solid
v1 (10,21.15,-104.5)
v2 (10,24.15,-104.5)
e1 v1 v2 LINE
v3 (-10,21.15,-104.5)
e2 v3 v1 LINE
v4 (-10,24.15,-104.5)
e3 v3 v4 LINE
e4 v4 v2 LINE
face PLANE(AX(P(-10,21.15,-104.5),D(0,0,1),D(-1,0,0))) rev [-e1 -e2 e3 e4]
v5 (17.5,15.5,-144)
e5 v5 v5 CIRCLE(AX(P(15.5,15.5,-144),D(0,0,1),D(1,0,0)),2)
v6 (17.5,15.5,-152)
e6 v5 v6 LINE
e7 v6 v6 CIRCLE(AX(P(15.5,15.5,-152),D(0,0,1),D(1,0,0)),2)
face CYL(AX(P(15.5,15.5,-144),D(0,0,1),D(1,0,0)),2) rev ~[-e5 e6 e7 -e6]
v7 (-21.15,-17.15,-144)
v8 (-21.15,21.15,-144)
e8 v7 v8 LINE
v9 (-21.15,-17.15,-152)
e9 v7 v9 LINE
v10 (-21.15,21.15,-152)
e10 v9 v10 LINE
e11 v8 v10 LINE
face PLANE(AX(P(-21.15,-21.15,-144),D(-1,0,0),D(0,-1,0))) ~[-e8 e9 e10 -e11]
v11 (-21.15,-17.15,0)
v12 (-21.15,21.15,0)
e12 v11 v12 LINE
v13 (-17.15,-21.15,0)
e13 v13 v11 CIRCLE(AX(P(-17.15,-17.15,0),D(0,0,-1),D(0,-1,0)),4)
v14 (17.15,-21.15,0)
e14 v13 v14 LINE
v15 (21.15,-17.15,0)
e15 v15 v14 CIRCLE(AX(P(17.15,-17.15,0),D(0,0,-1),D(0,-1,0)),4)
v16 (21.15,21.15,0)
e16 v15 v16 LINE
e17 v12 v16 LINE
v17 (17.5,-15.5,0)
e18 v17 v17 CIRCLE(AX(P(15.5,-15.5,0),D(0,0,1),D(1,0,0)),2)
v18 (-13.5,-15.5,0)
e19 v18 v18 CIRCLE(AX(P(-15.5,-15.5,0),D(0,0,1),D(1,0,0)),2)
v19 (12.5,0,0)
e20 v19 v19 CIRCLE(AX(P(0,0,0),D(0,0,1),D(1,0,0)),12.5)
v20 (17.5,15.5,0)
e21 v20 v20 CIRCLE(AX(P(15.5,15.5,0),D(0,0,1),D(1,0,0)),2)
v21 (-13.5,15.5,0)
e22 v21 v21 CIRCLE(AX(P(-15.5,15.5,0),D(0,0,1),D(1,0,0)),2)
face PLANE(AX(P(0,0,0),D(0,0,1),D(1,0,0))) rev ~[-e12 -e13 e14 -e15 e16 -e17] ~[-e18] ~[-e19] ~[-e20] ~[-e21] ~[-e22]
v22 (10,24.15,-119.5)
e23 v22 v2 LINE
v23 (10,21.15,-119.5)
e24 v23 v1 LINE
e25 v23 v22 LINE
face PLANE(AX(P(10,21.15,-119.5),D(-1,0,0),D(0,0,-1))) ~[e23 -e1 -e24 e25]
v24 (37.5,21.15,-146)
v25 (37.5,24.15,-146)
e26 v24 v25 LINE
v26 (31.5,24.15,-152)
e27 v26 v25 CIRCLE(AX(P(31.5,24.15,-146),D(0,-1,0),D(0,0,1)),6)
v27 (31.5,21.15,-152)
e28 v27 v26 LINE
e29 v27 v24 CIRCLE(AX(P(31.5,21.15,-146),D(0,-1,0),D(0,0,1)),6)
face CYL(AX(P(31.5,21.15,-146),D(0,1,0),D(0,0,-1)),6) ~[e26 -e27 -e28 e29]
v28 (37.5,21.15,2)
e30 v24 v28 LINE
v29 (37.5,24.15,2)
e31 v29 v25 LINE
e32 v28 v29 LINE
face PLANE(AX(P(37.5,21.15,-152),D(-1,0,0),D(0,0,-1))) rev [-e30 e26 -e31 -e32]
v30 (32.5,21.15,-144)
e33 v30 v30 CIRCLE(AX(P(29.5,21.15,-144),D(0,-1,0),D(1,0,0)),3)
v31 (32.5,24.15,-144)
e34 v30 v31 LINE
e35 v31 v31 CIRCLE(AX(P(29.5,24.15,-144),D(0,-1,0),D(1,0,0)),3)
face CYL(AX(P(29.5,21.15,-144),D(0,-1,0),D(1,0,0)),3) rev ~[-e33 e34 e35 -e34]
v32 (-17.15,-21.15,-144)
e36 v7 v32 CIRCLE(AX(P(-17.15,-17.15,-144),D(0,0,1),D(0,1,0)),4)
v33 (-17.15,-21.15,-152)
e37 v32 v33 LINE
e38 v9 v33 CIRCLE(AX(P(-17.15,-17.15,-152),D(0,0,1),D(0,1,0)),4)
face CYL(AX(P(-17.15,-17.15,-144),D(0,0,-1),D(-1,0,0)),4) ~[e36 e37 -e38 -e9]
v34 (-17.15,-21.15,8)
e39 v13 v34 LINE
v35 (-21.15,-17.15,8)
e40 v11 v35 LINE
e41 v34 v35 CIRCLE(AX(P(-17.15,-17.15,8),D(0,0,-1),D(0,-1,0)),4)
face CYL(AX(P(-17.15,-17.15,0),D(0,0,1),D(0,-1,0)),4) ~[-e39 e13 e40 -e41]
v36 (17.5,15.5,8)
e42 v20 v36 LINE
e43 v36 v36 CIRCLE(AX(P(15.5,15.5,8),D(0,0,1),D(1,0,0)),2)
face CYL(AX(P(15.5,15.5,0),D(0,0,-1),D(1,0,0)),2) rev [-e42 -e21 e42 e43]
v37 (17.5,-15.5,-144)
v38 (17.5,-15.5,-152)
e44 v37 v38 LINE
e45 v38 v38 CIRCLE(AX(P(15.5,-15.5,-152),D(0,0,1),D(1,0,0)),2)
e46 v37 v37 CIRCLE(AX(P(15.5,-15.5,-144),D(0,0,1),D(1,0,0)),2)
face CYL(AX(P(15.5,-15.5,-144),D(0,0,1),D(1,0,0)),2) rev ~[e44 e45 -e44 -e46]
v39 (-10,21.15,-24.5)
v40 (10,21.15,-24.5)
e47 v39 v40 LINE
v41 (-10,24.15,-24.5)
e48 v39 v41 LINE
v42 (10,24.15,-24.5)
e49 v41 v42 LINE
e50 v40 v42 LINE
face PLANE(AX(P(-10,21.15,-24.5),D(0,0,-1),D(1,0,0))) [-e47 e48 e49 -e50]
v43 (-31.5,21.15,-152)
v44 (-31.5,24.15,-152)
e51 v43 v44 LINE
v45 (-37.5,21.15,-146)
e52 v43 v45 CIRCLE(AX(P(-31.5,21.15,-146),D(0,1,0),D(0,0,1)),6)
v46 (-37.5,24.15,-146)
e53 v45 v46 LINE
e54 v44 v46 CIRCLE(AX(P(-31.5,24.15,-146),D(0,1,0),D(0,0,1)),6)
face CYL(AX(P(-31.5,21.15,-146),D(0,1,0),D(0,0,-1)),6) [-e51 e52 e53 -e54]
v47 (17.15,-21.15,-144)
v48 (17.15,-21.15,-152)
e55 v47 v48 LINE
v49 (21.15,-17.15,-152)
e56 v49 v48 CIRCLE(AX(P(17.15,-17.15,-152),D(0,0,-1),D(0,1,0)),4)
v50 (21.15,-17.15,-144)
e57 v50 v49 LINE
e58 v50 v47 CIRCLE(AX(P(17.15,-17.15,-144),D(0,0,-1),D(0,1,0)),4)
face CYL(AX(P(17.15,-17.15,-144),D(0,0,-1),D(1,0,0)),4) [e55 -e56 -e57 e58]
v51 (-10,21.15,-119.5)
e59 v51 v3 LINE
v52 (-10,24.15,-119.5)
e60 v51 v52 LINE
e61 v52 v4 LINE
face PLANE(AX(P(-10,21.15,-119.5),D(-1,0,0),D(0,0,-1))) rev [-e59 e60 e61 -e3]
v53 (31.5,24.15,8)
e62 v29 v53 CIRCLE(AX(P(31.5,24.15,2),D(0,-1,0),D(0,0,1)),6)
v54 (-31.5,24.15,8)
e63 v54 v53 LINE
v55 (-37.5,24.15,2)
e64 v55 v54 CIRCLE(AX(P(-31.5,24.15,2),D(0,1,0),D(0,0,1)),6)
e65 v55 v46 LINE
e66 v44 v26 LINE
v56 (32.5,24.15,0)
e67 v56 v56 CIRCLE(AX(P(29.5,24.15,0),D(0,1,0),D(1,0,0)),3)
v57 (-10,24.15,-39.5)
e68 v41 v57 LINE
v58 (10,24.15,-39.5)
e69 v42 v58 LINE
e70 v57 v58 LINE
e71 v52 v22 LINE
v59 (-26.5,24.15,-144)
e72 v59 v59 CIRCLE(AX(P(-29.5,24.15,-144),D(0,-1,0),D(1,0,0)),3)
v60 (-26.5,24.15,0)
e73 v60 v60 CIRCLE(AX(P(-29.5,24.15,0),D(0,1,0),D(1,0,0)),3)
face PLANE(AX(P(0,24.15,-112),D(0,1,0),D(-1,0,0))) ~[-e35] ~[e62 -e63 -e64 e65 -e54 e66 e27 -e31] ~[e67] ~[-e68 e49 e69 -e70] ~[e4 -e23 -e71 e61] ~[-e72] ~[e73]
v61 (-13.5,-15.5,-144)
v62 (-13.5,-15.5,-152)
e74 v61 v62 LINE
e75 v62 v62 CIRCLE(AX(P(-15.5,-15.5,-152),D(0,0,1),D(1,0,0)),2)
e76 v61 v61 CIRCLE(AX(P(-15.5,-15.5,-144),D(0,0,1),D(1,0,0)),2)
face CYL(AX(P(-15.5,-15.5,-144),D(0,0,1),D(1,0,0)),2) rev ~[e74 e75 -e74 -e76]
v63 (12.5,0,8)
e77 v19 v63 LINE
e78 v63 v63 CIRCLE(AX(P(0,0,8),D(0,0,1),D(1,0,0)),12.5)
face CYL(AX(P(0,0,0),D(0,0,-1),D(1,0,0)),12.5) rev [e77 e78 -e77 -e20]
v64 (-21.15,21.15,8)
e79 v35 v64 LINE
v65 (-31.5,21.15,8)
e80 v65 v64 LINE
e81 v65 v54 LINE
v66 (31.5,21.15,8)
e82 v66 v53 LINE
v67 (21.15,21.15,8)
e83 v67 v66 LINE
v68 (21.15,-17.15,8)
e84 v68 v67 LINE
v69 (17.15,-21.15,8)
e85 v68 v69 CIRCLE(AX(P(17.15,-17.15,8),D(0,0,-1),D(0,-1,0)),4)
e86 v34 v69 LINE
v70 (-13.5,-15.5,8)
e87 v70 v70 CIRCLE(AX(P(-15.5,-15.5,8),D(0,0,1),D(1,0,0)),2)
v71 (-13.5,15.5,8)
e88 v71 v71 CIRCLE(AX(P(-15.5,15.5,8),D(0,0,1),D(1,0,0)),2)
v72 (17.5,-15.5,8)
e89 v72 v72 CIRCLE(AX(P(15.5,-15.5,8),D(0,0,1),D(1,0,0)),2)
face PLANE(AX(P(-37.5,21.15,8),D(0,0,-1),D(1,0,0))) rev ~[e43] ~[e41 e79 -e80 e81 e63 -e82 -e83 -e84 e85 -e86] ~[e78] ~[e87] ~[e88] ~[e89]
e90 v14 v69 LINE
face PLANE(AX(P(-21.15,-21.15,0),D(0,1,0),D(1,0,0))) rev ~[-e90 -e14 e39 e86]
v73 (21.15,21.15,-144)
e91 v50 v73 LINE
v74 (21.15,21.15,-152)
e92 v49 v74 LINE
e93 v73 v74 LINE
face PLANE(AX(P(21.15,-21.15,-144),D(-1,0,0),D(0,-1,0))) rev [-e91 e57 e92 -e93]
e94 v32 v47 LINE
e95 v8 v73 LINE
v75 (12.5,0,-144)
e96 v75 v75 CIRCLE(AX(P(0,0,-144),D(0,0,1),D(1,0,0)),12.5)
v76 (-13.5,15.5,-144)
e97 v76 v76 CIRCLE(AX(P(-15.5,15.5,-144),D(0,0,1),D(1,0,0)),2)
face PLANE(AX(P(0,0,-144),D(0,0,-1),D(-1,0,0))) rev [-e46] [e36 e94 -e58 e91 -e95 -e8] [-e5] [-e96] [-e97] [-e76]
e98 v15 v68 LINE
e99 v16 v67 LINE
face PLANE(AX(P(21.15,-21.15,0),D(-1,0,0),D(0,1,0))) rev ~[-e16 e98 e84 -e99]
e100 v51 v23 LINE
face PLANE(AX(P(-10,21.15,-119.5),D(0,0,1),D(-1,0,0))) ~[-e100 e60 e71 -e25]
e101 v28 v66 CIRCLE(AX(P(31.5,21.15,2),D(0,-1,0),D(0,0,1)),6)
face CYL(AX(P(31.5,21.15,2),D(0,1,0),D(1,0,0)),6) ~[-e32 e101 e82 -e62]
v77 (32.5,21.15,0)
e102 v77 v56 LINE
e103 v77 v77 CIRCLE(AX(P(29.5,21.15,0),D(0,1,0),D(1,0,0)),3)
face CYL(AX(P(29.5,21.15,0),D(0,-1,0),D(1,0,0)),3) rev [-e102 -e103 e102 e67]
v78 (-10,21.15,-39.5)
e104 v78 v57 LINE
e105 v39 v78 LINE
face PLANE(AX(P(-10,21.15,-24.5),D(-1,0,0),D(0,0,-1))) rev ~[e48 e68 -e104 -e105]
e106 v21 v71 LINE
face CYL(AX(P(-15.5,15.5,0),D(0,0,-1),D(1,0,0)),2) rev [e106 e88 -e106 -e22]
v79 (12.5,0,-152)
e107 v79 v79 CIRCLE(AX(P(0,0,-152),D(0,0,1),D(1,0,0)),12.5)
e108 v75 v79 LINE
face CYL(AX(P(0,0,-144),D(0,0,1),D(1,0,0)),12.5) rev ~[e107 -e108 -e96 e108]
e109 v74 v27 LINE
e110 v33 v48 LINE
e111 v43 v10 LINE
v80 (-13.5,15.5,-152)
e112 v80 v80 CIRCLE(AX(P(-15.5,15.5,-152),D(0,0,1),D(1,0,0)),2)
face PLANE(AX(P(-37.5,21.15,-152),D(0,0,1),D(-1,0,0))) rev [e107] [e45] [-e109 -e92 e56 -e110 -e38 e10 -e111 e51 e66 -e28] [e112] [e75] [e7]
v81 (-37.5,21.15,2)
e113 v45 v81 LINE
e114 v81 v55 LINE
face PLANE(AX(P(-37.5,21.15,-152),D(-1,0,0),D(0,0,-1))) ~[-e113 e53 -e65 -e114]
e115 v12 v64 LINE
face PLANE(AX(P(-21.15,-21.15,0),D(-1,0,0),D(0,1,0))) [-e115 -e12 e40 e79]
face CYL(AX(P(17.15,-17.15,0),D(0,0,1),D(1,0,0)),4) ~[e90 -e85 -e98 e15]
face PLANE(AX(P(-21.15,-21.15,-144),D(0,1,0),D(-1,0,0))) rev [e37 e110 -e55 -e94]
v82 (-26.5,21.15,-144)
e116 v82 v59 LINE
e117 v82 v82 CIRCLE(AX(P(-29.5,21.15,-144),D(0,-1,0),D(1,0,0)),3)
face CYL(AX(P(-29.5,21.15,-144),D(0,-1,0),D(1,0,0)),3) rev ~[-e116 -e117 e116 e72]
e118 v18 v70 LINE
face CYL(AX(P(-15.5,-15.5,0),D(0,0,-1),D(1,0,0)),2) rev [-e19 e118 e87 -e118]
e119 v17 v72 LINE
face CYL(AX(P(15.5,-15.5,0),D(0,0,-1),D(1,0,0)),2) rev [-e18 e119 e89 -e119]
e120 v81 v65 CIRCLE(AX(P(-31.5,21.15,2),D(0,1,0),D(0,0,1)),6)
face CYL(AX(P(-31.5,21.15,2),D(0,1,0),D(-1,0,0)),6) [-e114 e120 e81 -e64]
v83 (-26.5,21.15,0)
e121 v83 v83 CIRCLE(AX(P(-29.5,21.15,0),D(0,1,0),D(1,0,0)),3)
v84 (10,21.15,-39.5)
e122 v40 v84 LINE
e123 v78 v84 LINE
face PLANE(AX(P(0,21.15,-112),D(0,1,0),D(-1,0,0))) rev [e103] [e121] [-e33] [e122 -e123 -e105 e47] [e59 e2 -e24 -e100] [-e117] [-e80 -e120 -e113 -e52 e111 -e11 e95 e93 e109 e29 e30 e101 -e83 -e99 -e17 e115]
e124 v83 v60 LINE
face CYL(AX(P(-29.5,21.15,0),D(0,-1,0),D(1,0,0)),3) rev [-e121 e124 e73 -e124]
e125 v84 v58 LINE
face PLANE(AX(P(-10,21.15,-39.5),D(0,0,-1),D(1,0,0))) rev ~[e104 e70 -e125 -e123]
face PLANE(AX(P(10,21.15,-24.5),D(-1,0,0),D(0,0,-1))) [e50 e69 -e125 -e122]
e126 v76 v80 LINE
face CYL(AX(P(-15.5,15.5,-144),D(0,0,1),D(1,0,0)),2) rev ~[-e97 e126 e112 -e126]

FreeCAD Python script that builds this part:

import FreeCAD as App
import Part
import Sketcher


def edges_at(feature, points):
    """Names of the edges that pass closest to the given points."""
    edges = feature.Shape.Edges
    near = lambda p: min(range(len(edges)), key=lambda i: edges[i].distToShape(Part.Vertex(*p))[0])
    return sorted({f"Edge{near(p) + 1}" for p in points})

doc = App.newDocument("Part")
params = doc.addObject("Spreadsheet::Sheet", "Params")
for row, (alias, value) in enumerate([
    ("sketch1_diameter", "4 mm"),
    ("sketch1_diameter2", "25 mm"),
    ("sketch1_width", "42.3 mm"),
    ("pad1_length", "8 mm"),
    ("sketch2_diameter", "6 mm"),
    ("sketch2_width", "75 mm"),
    ("sketch2_width2", "20 mm"),
    ("sketch2_height", "80 mm"),
    ("sketch2_height2", "15 mm"),
    ("pad2_length", "3 mm"),
    ("fillet_radius", "4 mm"),
    ("fillet2_radius", "6 mm"),
], start=1):
    params.set(f"A{row}", alias)
    params.set(f"B{row}", "=" + value)
    params.setAlias(f"B{row}", alias)

body = doc.addObject("PartDesign::Body", "Body")

# Sketch on XY plane
sketch1 = body.newObject("Sketcher::SketchObject", "Sketch")
sketch1.AttachmentSupport = (doc.getObject("XY_Plane"), [""])
sketch1.MapMode = "FlatFace"
sketch1.addGeometry([
    Part.LineSegment(App.Vector(-21.15, 21.15, 0), App.Vector(-21.15, -21.15, 0)),  # 0
    Part.LineSegment(App.Vector(-21.15, -21.15, 0), App.Vector(21.15, -21.15, 0)),  # 1
    Part.LineSegment(App.Vector(21.15, -21.15, 0), App.Vector(21.15, 21.15, 0)),  # 2
    Part.LineSegment(App.Vector(21.15, 21.15, 0), App.Vector(-21.15, 21.15, 0)),  # 3
    Part.Circle(App.Vector(-15.5, -15.5, 0), App.Vector(0, 0, 1), 2),  # 4
    Part.Circle(App.Vector(15.5, -15.5, 0), App.Vector(0, 0, 1), 2),  # 5
    Part.Circle(App.Vector(-15.5, 15.5, 0), App.Vector(0, 0, 1), 2),  # 6
    Part.Circle(App.Vector(0, 0, 0), App.Vector(0, 0, 1), 12.5),  # 7
    Part.Circle(App.Vector(15.5, 15.5, 0), App.Vector(0, 0, 1), 2),  # 8
], False)
sketch1.addConstraint([
    Sketcher.Constraint("Coincident", 0, 2, 1, 1),
    Sketcher.Constraint("Coincident", 1, 2, 2, 1),
    Sketcher.Constraint("Coincident", 2, 2, 3, 1),
    Sketcher.Constraint("Coincident", 3, 2, 0, 1),
    Sketcher.Constraint("Vertical", 0),
    Sketcher.Constraint("Horizontal", 1),
    Sketcher.Constraint("Vertical", 2),
    Sketcher.Constraint("Horizontal", 3),
    Sketcher.Constraint("Coincident", 7, 3, -1, 1),
    Sketcher.Constraint("Equal", 4, 5),
    Sketcher.Constraint("Equal", 5, 6),
    Sketcher.Constraint("Equal", 6, 8),
    Sketcher.Constraint("Symmetric", 5, 3, 6, 3, -1, 1),
    Sketcher.Constraint("Symmetric", 4, 3, 8, 3, -1, 1),
    Sketcher.Constraint("Symmetric", 0, 2, 2, 2, -1, 1),
    Sketcher.Constraint("Symmetric", 4, 3, 5, 3, -2),
    Sketcher.Constraint("Equal", 3, 0),
    Sketcher.Constraint("Diameter", 4, 4.0),
    Sketcher.Constraint("Diameter", 7, 25.0),
    Sketcher.Constraint("DistanceX", 1, 1, 1, 2, 42.3),
    Sketcher.Constraint("DistanceX", 4, 3, 5, 3, 31.0),
    Sketcher.Constraint("DistanceY", 4, 3, 6, 3, 31.0),
])
sketch1.setExpression("Constraints[17]", "Params.sketch1_diameter")
sketch1.setExpression("Constraints[18]", "Params.sketch1_diameter2")
sketch1.setExpression("Constraints[19]", "Params.sketch1_width")
pad1 = body.newObject("PartDesign::Pad", "Pad")
pad1.Profile = sketch1
pad1.setExpression("Length", "Params.pad1_length")

# Sketch on XZ plane
sketch2 = body.newObject("Sketcher::SketchObject", "Sketch001")
sketch2.AttachmentSupport = (doc.getObject("XZ_Plane"), [""])
sketch2.MapMode = "FlatFace"
sketch2.AttachmentOffset = App.Placement(App.Vector(0, 0, -21.15), App.Rotation())
sketch2.addGeometry([
    Part.LineSegment(App.Vector(-37.5, -72, 0), App.Vector(-37.5, 8, 0)),  # 0
    Part.LineSegment(App.Vector(-37.5, 8, 0), App.Vector(37.5, 8, 0)),  # 1
    Part.LineSegment(App.Vector(37.5, 8, 0), App.Vector(37.5, -72, 0)),  # 2
    Part.LineSegment(App.Vector(37.5, -72, 0), App.Vector(-37.5, -72, 0)),  # 3
    Part.Circle(App.Vector(-29.5, 0, 0), App.Vector(0, 0, 1), 3),  # 4
    Part.Circle(App.Vector(29.5, 0, 0), App.Vector(0, 0, 1), 3),  # 5
    Part.LineSegment(App.Vector(10, -24.5, 0), App.Vector(-10, -24.5, 0)),  # 6
    Part.LineSegment(App.Vector(-10, -24.5, 0), App.Vector(-10, -39.5, 0)),  # 7
    Part.LineSegment(App.Vector(-10, -39.5, 0), App.Vector(10, -39.5, 0)),  # 8
    Part.LineSegment(App.Vector(10, -39.5, 0), App.Vector(10, -24.5, 0)),  # 9
], False)
sketch2.addConstraint([
    Sketcher.Constraint("Coincident", 0, 2, 1, 1),
    Sketcher.Constraint("Coincident", 1, 2, 2, 1),
    Sketcher.Constraint("Coincident", 2, 2, 3, 1),
    Sketcher.Constraint("Coincident", 3, 2, 0, 1),
    Sketcher.Constraint("Coincident", 6, 2, 7, 1),
    Sketcher.Constraint("Coincident", 7, 2, 8, 1),
    Sketcher.Constraint("Coincident", 8, 2, 9, 1),
    Sketcher.Constraint("Coincident", 9, 2, 6, 1),
    Sketcher.Constraint("Vertical", 0),
    Sketcher.Constraint("Horizontal", 1),
    Sketcher.Constraint("Vertical", 2),
    Sketcher.Constraint("Horizontal", 3),
    Sketcher.Constraint("Horizontal", 6),
    Sketcher.Constraint("Vertical", 7),
    Sketcher.Constraint("Horizontal", 8),
    Sketcher.Constraint("Vertical", 9),
    Sketcher.Constraint("Equal", 4, 5),
    Sketcher.Constraint("Symmetric", 4, 3, 5, 3, -1, 1),
    Sketcher.Constraint("PointOnObject", 4, 3, -1),
    Sketcher.Constraint("Diameter", 4, 6.0),
    Sketcher.Constraint("DistanceX", 1, 1, 1, 2, 75.0),
    Sketcher.Constraint("DistanceX", 6, 2, 6, 1, 20.0),
    Sketcher.Constraint("DistanceY", 0, 1, 0, 2, 80.0),
    Sketcher.Constraint("DistanceY", 7, 2, 7, 1, 15.0),
    Sketcher.Constraint("DistanceY", -1, 1, 0, 2, 8.0),
    Sketcher.Constraint("DistanceX", 6, 2, -1, 1, 10.0),
    Sketcher.Constraint("DistanceX", 4, 3, 5, 3, 59.0),
    Sketcher.Constraint("DistanceX", 0, 2, 4, 3, 8.0),
    Sketcher.Constraint("DistanceY", 6, 2, -1, 1, 24.5),
])
sketch2.setExpression("Constraints[19]", "Params.sketch2_diameter")
sketch2.setExpression("Constraints[20]", "Params.sketch2_width")
sketch2.setExpression("Constraints[21]", "Params.sketch2_width2")
sketch2.setExpression("Constraints[22]", "Params.sketch2_height")
sketch2.setExpression("Constraints[23]", "Params.sketch2_height2")
pad2 = body.newObject("PartDesign::Pad", "Pad001")
pad2.Profile = sketch2
pad2.setExpression("Length", "Params.pad2_length")
pad2.Reversed = True
doc.recompute()

datumplane = body.newObject("PartDesign::Plane", "DatumPlane")
datumplane.AttachmentSupport = (doc.getObject("XY_Plane"), [""])
datumplane.MapMode = "FlatFace"
datumplane.AttachmentOffset = App.Placement(App.Vector(0, 0, -72), App.Rotation())
mirrored = body.newObject("PartDesign::Mirrored", "Mirrored")
mirrored.Originals = [pad2]
mirrored.MirrorPlane = (datumplane, [""])
body.Tip = mirrored
doc.recompute()

datumplane2 = body.newObject("PartDesign::Plane", "DatumPlane001")
datumplane2.AttachmentSupport = (doc.getObject("XY_Plane"), [""])
datumplane2.MapMode = "FlatFace"
datumplane2.AttachmentOffset = App.Placement(App.Vector(0, 0, -72), App.Rotation())
mirrored2 = body.newObject("PartDesign::Mirrored", "Mirrored001")
mirrored2.Originals = [pad1]
mirrored2.MirrorPlane = (datumplane2, [""])
body.Tip = mirrored2
doc.recompute()

fillet = body.newObject("PartDesign::Fillet", "Fillet")
fillet.Base = (mirrored2, edges_at(mirrored2, [
    (21.15, -21.15, 4),
    (-21.15, -21.15, 4),
    (-21.15, -21.15, -148),
    (21.15, -21.15, -148),
]))
fillet.setExpression("Radius", "Params.fillet_radius")
doc.recompute()

fillet2 = body.newObject("PartDesign::Fillet", "Fillet001")
fillet2.Base = (fillet, edges_at(fillet, [
    (-37.5, 22.65, 8),
    (37.5, 22.65, 8),
    (-37.5, 22.65, -152),
    (37.5, 22.65, -152),
]))
fillet2.setExpression("Radius", "Params.fillet2_radius")

doc.recompute()
